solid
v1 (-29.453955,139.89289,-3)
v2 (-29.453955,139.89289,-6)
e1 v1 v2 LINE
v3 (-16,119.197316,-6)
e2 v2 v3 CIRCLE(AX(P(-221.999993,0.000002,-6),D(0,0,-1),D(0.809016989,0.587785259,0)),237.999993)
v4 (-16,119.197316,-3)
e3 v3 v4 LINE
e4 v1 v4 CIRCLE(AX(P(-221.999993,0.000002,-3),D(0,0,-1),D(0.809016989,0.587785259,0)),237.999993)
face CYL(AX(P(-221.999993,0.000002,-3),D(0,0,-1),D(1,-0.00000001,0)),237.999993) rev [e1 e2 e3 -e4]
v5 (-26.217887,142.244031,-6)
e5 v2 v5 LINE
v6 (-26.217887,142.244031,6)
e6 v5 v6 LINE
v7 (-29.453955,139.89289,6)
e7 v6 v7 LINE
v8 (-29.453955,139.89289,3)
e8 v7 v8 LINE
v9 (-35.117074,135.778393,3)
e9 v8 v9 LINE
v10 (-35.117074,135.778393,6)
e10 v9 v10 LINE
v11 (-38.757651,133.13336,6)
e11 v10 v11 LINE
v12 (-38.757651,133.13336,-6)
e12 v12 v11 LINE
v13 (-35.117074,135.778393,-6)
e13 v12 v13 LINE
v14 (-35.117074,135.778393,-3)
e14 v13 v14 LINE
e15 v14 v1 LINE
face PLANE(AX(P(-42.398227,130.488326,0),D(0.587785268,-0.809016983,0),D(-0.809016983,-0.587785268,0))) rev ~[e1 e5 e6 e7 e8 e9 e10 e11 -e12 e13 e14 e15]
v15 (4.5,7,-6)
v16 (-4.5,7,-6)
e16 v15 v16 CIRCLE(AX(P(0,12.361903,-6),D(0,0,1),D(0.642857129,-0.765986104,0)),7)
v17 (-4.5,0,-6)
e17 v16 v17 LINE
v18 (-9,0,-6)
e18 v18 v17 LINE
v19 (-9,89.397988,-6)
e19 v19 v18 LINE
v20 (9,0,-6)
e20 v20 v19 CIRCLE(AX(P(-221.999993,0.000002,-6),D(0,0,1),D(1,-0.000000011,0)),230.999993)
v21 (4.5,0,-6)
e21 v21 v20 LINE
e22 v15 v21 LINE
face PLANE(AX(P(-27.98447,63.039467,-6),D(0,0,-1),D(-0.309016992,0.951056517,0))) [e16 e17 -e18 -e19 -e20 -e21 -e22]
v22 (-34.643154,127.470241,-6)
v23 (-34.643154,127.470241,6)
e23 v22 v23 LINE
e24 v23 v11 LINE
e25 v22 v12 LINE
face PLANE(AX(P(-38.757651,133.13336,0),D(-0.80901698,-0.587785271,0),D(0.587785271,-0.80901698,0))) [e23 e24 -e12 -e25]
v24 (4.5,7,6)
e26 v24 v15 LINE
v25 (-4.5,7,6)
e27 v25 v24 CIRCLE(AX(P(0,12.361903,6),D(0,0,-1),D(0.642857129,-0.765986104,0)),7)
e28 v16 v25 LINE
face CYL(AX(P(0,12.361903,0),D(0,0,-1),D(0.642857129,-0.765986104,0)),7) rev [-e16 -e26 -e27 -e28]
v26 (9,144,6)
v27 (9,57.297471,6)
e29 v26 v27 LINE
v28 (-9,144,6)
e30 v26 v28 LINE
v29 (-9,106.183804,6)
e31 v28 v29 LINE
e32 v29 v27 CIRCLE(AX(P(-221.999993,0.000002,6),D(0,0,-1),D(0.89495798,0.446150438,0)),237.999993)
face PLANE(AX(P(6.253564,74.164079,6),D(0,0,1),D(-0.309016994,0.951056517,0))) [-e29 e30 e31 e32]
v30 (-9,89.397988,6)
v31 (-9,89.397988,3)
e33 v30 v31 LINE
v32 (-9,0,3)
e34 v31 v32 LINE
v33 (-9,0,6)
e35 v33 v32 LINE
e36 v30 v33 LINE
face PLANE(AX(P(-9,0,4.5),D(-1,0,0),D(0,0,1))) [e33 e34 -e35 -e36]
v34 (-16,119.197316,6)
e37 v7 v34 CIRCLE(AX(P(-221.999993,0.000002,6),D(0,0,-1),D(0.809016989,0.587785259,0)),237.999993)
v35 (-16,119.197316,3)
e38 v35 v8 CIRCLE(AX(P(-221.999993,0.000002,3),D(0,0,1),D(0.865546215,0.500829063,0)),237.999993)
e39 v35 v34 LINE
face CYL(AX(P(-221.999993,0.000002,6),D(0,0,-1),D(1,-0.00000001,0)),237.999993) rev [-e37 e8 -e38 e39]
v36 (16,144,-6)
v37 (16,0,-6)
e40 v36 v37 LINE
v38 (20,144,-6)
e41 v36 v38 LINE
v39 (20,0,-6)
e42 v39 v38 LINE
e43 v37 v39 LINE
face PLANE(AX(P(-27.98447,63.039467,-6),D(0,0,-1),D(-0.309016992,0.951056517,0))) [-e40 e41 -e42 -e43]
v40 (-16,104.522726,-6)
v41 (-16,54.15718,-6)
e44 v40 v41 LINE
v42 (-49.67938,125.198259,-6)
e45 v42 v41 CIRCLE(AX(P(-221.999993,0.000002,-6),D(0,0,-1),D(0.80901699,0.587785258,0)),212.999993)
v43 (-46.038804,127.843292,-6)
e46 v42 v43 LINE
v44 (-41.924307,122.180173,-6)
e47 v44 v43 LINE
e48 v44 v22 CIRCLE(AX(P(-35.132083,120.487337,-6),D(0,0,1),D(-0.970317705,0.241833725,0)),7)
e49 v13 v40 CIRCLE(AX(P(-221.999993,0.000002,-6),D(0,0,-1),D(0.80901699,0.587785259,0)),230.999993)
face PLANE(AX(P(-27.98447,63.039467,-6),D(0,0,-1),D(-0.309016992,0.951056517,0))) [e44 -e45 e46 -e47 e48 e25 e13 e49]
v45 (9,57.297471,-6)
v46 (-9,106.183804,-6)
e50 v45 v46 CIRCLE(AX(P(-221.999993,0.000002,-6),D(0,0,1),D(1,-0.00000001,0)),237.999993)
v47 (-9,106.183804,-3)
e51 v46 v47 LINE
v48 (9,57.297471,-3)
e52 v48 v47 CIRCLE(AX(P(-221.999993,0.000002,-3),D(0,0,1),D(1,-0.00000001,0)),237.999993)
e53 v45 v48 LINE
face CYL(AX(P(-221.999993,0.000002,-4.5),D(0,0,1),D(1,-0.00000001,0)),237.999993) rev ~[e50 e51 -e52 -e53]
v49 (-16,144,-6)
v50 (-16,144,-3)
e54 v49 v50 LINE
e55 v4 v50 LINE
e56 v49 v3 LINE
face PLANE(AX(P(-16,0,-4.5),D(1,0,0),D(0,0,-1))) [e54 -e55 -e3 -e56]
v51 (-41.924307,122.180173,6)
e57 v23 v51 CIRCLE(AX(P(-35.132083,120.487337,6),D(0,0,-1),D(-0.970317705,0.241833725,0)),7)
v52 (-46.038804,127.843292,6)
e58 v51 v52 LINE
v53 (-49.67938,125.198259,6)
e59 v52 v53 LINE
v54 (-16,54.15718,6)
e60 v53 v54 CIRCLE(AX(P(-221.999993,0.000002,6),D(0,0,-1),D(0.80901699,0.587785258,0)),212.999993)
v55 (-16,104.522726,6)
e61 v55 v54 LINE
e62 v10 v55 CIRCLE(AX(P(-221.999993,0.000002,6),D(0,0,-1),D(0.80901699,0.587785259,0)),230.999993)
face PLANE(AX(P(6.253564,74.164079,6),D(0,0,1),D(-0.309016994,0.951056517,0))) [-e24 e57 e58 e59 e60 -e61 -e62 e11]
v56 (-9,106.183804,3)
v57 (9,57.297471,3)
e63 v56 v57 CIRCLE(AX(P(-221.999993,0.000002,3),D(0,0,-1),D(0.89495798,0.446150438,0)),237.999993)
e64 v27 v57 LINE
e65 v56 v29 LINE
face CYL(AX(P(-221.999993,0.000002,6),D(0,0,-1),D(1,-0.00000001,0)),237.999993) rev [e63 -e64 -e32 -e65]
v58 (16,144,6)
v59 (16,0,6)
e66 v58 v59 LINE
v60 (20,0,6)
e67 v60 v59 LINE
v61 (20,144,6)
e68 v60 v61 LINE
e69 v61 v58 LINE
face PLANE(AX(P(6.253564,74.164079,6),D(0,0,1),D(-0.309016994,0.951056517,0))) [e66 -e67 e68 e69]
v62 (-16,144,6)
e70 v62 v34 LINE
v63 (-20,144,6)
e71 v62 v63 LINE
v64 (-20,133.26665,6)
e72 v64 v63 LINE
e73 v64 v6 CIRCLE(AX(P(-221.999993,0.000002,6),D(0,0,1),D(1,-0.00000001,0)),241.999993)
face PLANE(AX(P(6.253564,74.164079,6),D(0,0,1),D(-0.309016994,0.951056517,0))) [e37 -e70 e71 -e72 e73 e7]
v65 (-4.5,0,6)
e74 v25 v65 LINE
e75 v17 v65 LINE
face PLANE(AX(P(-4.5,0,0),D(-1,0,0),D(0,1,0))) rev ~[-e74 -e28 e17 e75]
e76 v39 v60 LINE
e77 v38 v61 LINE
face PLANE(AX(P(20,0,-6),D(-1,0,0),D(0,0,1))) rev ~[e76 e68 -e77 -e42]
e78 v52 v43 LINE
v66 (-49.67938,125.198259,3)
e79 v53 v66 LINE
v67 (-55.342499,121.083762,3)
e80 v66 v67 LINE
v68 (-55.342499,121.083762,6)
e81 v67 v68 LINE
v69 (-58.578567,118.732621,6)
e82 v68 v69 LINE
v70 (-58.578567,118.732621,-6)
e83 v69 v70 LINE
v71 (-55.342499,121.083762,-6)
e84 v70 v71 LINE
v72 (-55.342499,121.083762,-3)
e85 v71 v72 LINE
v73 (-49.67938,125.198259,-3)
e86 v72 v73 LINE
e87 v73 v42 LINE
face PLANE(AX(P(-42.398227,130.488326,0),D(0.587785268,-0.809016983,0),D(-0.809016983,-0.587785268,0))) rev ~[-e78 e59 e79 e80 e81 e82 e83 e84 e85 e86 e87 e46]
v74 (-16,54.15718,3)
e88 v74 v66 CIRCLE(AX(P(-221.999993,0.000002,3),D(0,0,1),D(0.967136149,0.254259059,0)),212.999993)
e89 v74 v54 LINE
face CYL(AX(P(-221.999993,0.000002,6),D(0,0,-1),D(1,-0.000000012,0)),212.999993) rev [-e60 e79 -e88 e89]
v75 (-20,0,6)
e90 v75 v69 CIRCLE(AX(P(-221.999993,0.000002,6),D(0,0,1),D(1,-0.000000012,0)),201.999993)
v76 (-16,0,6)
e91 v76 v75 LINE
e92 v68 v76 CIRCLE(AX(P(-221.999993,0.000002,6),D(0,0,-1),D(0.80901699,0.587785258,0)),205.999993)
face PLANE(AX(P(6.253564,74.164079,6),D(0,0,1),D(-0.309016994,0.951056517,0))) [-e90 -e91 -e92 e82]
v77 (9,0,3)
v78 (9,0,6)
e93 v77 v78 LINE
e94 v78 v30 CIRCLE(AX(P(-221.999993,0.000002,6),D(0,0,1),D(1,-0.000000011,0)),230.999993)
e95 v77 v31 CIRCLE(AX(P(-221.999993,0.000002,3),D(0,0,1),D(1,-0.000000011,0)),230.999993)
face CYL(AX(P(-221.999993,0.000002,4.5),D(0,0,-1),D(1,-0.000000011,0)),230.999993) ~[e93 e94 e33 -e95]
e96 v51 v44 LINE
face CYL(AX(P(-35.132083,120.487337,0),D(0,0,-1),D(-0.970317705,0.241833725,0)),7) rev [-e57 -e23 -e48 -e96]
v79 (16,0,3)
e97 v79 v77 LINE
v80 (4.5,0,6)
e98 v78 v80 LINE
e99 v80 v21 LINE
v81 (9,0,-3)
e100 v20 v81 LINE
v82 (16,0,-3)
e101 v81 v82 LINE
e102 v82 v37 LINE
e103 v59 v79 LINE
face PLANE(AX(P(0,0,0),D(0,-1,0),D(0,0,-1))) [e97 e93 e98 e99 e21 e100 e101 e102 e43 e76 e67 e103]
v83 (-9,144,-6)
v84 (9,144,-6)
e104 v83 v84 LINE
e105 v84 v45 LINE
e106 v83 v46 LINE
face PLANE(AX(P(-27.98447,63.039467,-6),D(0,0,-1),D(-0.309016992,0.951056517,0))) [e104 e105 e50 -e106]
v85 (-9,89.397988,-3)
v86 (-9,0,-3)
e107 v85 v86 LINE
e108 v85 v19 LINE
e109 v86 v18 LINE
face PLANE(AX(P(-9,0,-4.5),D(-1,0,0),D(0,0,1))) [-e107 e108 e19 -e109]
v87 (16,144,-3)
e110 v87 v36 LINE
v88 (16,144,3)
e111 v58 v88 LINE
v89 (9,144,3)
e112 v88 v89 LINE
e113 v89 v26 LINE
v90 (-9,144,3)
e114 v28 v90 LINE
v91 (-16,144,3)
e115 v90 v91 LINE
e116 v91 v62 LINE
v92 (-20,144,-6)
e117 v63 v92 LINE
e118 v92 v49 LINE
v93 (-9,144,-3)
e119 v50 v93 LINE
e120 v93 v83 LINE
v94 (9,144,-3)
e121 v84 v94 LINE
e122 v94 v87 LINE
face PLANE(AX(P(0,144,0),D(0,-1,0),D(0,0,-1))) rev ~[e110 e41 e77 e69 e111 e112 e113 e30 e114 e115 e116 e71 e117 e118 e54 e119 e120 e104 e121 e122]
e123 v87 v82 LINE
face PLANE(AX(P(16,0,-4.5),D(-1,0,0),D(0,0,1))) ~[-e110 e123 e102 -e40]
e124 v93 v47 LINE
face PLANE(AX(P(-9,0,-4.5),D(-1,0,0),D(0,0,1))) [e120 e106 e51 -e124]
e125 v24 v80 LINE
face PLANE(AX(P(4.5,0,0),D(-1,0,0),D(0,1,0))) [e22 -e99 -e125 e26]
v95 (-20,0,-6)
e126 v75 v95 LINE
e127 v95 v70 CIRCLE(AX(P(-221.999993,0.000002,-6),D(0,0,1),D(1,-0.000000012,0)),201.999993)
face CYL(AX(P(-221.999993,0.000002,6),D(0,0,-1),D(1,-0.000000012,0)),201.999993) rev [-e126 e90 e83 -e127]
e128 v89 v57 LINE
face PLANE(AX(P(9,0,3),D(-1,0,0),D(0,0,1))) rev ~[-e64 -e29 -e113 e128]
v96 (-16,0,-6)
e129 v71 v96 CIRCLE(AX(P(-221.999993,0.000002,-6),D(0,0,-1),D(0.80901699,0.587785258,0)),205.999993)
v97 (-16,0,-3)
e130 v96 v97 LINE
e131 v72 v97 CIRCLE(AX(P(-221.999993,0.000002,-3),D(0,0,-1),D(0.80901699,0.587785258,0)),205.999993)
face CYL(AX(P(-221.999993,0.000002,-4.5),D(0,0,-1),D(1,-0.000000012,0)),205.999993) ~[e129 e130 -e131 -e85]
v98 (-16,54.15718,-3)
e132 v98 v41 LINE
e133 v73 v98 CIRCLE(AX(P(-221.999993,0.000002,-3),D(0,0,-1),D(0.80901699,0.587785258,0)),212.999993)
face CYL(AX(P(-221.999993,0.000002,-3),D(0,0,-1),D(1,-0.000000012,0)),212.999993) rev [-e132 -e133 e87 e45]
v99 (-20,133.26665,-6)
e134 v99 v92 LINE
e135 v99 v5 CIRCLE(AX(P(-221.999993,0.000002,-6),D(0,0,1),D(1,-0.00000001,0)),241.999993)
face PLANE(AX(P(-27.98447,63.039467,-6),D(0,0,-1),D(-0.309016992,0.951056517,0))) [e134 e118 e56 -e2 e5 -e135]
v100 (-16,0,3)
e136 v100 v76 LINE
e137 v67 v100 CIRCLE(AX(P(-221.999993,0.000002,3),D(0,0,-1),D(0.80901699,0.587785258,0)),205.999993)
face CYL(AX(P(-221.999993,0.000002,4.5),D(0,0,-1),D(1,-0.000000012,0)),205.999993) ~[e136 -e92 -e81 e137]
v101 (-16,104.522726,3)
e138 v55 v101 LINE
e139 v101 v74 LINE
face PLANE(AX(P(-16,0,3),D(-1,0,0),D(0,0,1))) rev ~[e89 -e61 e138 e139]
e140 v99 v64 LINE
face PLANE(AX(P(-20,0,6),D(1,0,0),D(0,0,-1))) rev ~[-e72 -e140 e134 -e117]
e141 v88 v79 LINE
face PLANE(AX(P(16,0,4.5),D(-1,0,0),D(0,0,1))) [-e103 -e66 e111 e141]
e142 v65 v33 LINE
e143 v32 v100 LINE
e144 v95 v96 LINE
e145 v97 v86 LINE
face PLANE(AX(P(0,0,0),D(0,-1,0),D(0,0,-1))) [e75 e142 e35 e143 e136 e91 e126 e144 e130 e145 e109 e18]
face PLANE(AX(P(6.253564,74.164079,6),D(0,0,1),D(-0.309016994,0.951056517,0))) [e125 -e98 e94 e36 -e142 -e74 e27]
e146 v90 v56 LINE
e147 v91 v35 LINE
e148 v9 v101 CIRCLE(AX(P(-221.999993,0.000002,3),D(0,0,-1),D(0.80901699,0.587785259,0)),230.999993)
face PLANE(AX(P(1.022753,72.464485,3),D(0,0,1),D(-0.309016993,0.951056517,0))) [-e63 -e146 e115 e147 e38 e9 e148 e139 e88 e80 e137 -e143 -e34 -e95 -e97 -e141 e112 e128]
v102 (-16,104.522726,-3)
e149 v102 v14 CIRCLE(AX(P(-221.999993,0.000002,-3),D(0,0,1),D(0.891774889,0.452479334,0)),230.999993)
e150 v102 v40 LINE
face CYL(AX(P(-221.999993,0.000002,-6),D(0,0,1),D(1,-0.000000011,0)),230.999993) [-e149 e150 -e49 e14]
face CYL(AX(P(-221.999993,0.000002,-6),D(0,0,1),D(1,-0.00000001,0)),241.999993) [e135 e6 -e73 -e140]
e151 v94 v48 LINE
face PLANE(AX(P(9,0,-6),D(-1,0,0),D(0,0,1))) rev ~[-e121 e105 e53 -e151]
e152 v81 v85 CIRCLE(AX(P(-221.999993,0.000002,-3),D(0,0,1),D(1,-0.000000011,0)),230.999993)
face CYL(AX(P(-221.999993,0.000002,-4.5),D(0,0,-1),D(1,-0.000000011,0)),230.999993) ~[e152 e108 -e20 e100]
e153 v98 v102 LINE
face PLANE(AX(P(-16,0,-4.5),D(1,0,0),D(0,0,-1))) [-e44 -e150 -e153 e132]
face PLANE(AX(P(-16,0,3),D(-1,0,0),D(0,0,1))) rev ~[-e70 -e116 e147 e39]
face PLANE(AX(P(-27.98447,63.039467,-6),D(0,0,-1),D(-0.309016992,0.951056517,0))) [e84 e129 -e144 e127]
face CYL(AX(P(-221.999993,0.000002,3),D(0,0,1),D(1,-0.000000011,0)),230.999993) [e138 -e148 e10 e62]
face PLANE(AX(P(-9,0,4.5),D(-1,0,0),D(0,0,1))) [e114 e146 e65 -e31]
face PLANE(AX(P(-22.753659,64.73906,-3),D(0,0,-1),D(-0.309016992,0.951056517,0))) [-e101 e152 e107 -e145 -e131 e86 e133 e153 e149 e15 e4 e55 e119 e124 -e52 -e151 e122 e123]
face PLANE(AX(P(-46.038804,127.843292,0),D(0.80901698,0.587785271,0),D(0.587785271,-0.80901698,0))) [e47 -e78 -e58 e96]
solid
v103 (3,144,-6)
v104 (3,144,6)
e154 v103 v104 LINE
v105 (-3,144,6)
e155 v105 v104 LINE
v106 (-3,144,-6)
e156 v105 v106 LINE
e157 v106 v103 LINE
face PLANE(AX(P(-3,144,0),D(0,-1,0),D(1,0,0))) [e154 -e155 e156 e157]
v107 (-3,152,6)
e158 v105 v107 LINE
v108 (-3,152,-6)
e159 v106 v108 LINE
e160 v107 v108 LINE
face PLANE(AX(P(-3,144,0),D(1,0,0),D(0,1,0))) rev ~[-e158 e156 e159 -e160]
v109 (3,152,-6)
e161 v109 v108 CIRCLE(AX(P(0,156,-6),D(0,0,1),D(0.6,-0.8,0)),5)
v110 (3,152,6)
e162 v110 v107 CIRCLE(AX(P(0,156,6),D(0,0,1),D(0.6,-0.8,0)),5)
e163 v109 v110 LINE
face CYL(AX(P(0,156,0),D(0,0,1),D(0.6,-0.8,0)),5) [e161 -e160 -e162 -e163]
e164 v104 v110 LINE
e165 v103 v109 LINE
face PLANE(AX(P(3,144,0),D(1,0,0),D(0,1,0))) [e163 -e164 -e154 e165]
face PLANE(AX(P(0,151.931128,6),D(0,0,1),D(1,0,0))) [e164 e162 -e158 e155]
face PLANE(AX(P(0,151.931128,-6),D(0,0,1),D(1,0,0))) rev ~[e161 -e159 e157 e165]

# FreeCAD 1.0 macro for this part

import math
import FreeCAD as App
import Part
import Sketcher
Q = App.Units.Quantity

doc = App.newDocument("Part")
params = doc.addObject("Spreadsheet::Sheet", "Params")
for row, (alias, value) in enumerate([
    ("sketch1_width", "4 mm"),
    ("sketch1_width2", "7 mm"),
    ("sketch1_width3", "18 mm"),
    ("sketch1_height", "12 mm"),
    ("sketch1_height2", "3 mm"),
    ("sketch3_width", "4 mm"),
    ("sketch3_width2", "7 mm"),
    ("sketch3_width3", "18 mm"),
    ("sketch3_height", "12 mm"),
    ("sketch3_height2", "3 mm"),
    ("sketch4_height", "144 mm"),
    ("sketch5_width", "7 mm"),
    ("sketch5_height", "3 mm"),
    ("sketch6_height", "144 mm"),
    ("sketch7_width", "7 mm"),
    ("sketch7_height", "3 mm"),
    ("sketch9_width", "7 mm"),
    ("sketch9_height", "3 mm"),
    ("sketch11_width", "7 mm"),
    ("sketch11_height", "3 mm"),
    ("sketch12_height", "144 mm"),
    ("sketch13_width", "7 mm"),
    ("sketch13_height", "3 mm"),
    ("sketch15_width", "7 mm"),
    ("sketch15_height", "3 mm"),
    ("sketch16_height", "144 mm"),
    ("sketch17_width", "7 mm"),
    ("sketch17_height", "3 mm"),
    ("sketch19_radius", "7 mm"),
    ("sketch19_length", "9 mm"),
    ("sketch19_length2", "7 mm"),
    ("sketch20_radius", "7 mm"),
    ("sketch20_width", "9 mm"),
    ("sketch20_height", "7 mm"),
    ("sketch21_radius", "5 mm"),
    ("sketch21_width", "6 mm"),
    ("sketch21_height", "8 mm"),
    ("pad1_length", "12 mm"),
], start=1):
    params.set(f"A{row}", alias)
    params.set(f"B{row}", "=" + value)
    params.setAlias(f"B{row}", alias)

body = doc.addObject("PartDesign::Body", "Body")

sketch1 = body.newObject("Sketcher::SketchObject", "Sketch")
sketch1.AttachmentSupport = (doc.getObject("XZ_Plane"), [""])
sketch1.MapMode = "FlatFace"
sketch1.addGeometry(Part.LineSegment(App.Vector(-20, 6, 0), App.Vector(-20, -6, 0)), False)
sketch1.addGeometry(Part.LineSegment(App.Vector(-20, -6, 0), App.Vector(-16, -6, 0)), False)
sketch1.addGeometry(Part.LineSegment(App.Vector(-16, -6, 0), App.Vector(-16, -3, 0)), False)
sketch1.addGeometry(Part.LineSegment(App.Vector(-16, -3, 0), App.Vector(-9, -3, 0)), False)
sketch1.addGeometry(Part.LineSegment(App.Vector(-9, -3, 0), App.Vector(-9, -6, 0)), False)
sketch1.addGeometry(Part.LineSegment(App.Vector(-9, -6, 0), App.Vector(9, -6, 0)), False)
sketch1.addGeometry(Part.LineSegment(App.Vector(9, -6, 0), App.Vector(9, -3, 0)), False)
sketch1.addGeometry(Part.LineSegment(App.Vector(9, -3, 0), App.Vector(16, -3, 0)), False)
sketch1.addGeometry(Part.LineSegment(App.Vector(16, -3, 0), App.Vector(16, -6, 0)), False)
sketch1.addGeometry(Part.LineSegment(App.Vector(16, -6, 0), App.Vector(20, -6, 0)), False)
sketch1.addGeometry(Part.LineSegment(App.Vector(20, -6, 0), App.Vector(20, 6, 0)), False)
sketch1.addGeometry(Part.LineSegment(App.Vector(20, 6, 0), App.Vector(16, 6, 0)), False)
sketch1.addGeometry(Part.LineSegment(App.Vector(16, 6, 0), App.Vector(16, 3, 0)), False)
sketch1.addGeometry(Part.LineSegment(App.Vector(16, 3, 0), App.Vector(9, 3, 0)), False)
sketch1.addGeometry(Part.LineSegment(App.Vector(9, 3, 0), App.Vector(9, 6, 0)), False)
sketch1.addGeometry(Part.LineSegment(App.Vector(9, 6, 0), App.Vector(-9, 6, 0)), False)
sketch1.addGeometry(Part.LineSegment(App.Vector(-9, 6, 0), App.Vector(-9, 3, 0)), False)
sketch1.addGeometry(Part.LineSegment(App.Vector(-9, 3, 0), App.Vector(-16, 3, 0)), False)
sketch1.addGeometry(Part.LineSegment(App.Vector(-16, 3, 0), App.Vector(-16, 6, 0)), False)
sketch1.addGeometry(Part.LineSegment(App.Vector(-16, 6, 0), App.Vector(-20, 6, 0)), False)
sketch1.addConstraint(Sketcher.Constraint("Coincident", 0, 2, 1, 1))
sketch1.addConstraint(Sketcher.Constraint("Coincident", 1, 2, 2, 1))
sketch1.addConstraint(Sketcher.Constraint("Coincident", 2, 2, 3, 1))
sketch1.addConstraint(Sketcher.Constraint("Coincident", 3, 2, 4, 1))
sketch1.addConstraint(Sketcher.Constraint("Coincident", 4, 2, 5, 1))
sketch1.addConstraint(Sketcher.Constraint("Coincident", 5, 2, 6, 1))
sketch1.addConstraint(Sketcher.Constraint("Coincident", 6, 2, 7, 1))
sketch1.addConstraint(Sketcher.Constraint("Coincident", 7, 2, 8, 1))
sketch1.addConstraint(Sketcher.Constraint("Coincident", 8, 2, 9, 1))
sketch1.addConstraint(Sketcher.Constraint("Coincident", 9, 2, 10, 1))
sketch1.addConstraint(Sketcher.Constraint("Coincident", 10, 2, 11, 1))
sketch1.addConstraint(Sketcher.Constraint("Coincident", 11, 2, 12, 1))
sketch1.addConstraint(Sketcher.Constraint("Coincident", 12, 2, 13, 1))
sketch1.addConstraint(Sketcher.Constraint("Coincident", 13, 2, 14, 1))
sketch1.addConstraint(Sketcher.Constraint("Coincident", 14, 2, 15, 1))
sketch1.addConstraint(Sketcher.Constraint("Coincident", 15, 2, 16, 1))
sketch1.addConstraint(Sketcher.Constraint("Coincident", 16, 2, 17, 1))
sketch1.addConstraint(Sketcher.Constraint("Coincident", 17, 2, 18, 1))
sketch1.addConstraint(Sketcher.Constraint("Coincident", 18, 2, 19, 1))
sketch1.addConstraint(Sketcher.Constraint("Coincident", 19, 2, 0, 1))
sketch1.addConstraint(Sketcher.Constraint("Vertical", 0))
sketch1.addConstraint(Sketcher.Constraint("Horizontal", 1))
sketch1.addConstraint(Sketcher.Constraint("Vertical", 2))
sketch1.addConstraint(Sketcher.Constraint("Horizontal", 3))
sketch1.addConstraint(Sketcher.Constraint("Vertical", 4))
sketch1.addConstraint(Sketcher.Constraint("Horizontal", 5))
sketch1.addConstraint(Sketcher.Constraint("Vertical", 6))
sketch1.addConstraint(Sketcher.Constraint("Horizontal", 7))
sketch1.addConstraint(Sketcher.Constraint("Vertical", 8))
sketch1.addConstraint(Sketcher.Constraint("Horizontal", 9))
sketch1.addConstraint(Sketcher.Constraint("Vertical", 10))
sketch1.addConstraint(Sketcher.Constraint("Horizontal", 11))
sketch1.addConstraint(Sketcher.Constraint("Vertical", 12))
sketch1.addConstraint(Sketcher.Constraint("Horizontal", 13))
sketch1.addConstraint(Sketcher.Constraint("Vertical", 14))
sketch1.addConstraint(Sketcher.Constraint("Horizontal", 15))
sketch1.addConstraint(Sketcher.Constraint("Vertical", 16))
sketch1.addConstraint(Sketcher.Constraint("Horizontal", 17))
sketch1.addConstraint(Sketcher.Constraint("Vertical", 18))
sketch1.addConstraint(Sketcher.Constraint("Horizontal", 19))
sketch1.addConstraint(Sketcher.Constraint("Symmetric", 0, 2, 10, 2, -1, 1))
sketch1.addConstraint(Sketcher.Constraint("Symmetric", 2, 2, 12, 2, -1, 1))
sketch1.addConstraint(Sketcher.Constraint("Symmetric", 4, 2, 14, 2, -1, 1))
sketch1.addConstraint(Sketcher.Constraint("Symmetric", 6, 2, 16, 2, -1, 1))
sketch1.addConstraint(Sketcher.Constraint("Symmetric", 8, 2, 18, 2, -1, 1))
sketch1.addConstraint(Sketcher.Constraint("Symmetric", 3, 2, 6, 2, -2))
sketch1.addConstraint(Sketcher.Constraint("Symmetric", 1, 2, 8, 2, -2))
sketch1.addConstraint(Sketcher.Constraint("Horizontal", 1, 2, 4, 2))
sketch1.addConstraint(Sketcher.Constraint("DistanceX", 1, 1, 1, 2, 4.0))
sketch1.addConstraint(Sketcher.Constraint("DistanceX", 3, 1, 3, 2, 7.0))
sketch1.addConstraint(Sketcher.Constraint("DistanceX", 5, 1, 5, 2, 18.0))
sketch1.addConstraint(Sketcher.Constraint("DistanceY", 0, 2, 0, 1, 12.0))
sketch1.addConstraint(Sketcher.Constraint("DistanceY", 2, 1, 2, 2, 3.0))
sketch1.setExpression("Constraints[48]", "Params.sketch1_width")
sketch1.setExpression("Constraints[49]", "Params.sketch1_width2")
sketch1.setExpression("Constraints[50]", "Params.sketch1_width3")
sketch1.setExpression("Constraints[51]", "Params.sketch1_height")
sketch1.setExpression("Constraints[52]", "Params.sketch1_height2")

sketch2 = body.newObject("Sketcher::SketchObject", "Sketch001")
sketch2.AttachmentSupport = (doc.getObject("XY_Plane"), [""])
sketch2.MapMode = "FlatFace"
sketch2.addGeometry(Part.ArcOfCircle(Part.Circle(App.Vector(-222, 0, 0), App.Vector(0, 0, 1), 222), math.radians(0), math.radians(36)), False)
sketch2.addConstraint(Sketcher.Constraint("Coincident", 0, 1, -1, 1))
sketch2.addConstraint(Sketcher.Constraint("Radius", 0, 221.999993))
sketch2.addConstraint(Sketcher.Constraint("DistanceX", 0, 2, -1, 1, 42.398227))
sketch2.addConstraint(Sketcher.Constraint("DistanceY", -1, 1, 0, 2, 130.488326))
doc.recompute()

additivepipe = body.newObject("PartDesign::AdditivePipe", "AdditivePipe")
additivepipe.Profile = sketch1
additivepipe.Spine = (sketch2, ["Edge1"])

sketch3 = body.newObject("Sketcher::SketchObject", "Sketch002")
sketch3.AttachmentSupport = (doc.getObject("XZ_Plane"), [""])
sketch3.MapMode = "FlatFace"
sketch3.addGeometry(Part.LineSegment(App.Vector(-20, 6, 0), App.Vector(-20, -6, 0)), False)
sketch3.addGeometry(Part.LineSegment(App.Vector(-20, -6, 0), App.Vector(-16, -6, 0)), False)
sketch3.addGeometry(Part.LineSegment(App.Vector(-16, -6, 0), App.Vector(-16, -3, 0)), False)
sketch3.addGeometry(Part.LineSegment(App.Vector(-16, -3, 0), App.Vector(-9, -3, 0)), False)
sketch3.addGeometry(Part.LineSegment(App.Vector(-9, -3, 0), App.Vector(-9, -6, 0)), False)
sketch3.addGeometry(Part.LineSegment(App.Vector(-9, -6, 0), App.Vector(9, -6, 0)), False)
sketch3.addGeometry(Part.LineSegment(App.Vector(9, -6, 0), App.Vector(9, -3, 0)), False)
sketch3.addGeometry(Part.LineSegment(App.Vector(9, -3, 0), App.Vector(16, -3, 0)), False)
sketch3.addGeometry(Part.LineSegment(App.Vector(16, -3, 0), App.Vector(16, -6, 0)), False)
sketch3.addGeometry(Part.LineSegment(App.Vector(16, -6, 0), App.Vector(20, -6, 0)), False)
sketch3.addGeometry(Part.LineSegment(App.Vector(20, -6, 0), App.Vector(20, 6, 0)), False)
sketch3.addGeometry(Part.LineSegment(App.Vector(20, 6, 0), App.Vector(16, 6, 0)), False)
sketch3.addGeometry(Part.LineSegment(App.Vector(16, 6, 0), App.Vector(16, 3, 0)), False)
sketch3.addGeometry(Part.LineSegment(App.Vector(16, 3, 0), App.Vector(9, 3, 0)), False)
sketch3.addGeometry(Part.LineSegment(App.Vector(9, 3, 0), App.Vector(9, 6, 0)), False)
sketch3.addGeometry(Part.LineSegment(App.Vector(9, 6, 0), App.Vector(-9, 6, 0)), False)
sketch3.addGeometry(Part.LineSegment(App.Vector(-9, 6, 0), App.Vector(-9, 3, 0)), False)
sketch3.addGeometry(Part.LineSegment(App.Vector(-9, 3, 0), App.Vector(-16, 3, 0)), False)
sketch3.addGeometry(Part.LineSegment(App.Vector(-16, 3, 0), App.Vector(-16, 6, 0)), False)
sketch3.addGeometry(Part.LineSegment(App.Vector(-16, 6, 0), App.Vector(-20, 6, 0)), False)
sketch3.addConstraint(Sketcher.Constraint("Coincident", 0, 2, 1, 1))
sketch3.addConstraint(Sketcher.Constraint("Coincident", 1, 2, 2, 1))
sketch3.addConstraint(Sketcher.Constraint("Coincident", 2, 2, 3, 1))
sketch3.addConstraint(Sketcher.Constraint("Coincident", 3, 2, 4, 1))
sketch3.addConstraint(Sketcher.Constraint("Coincident", 4, 2, 5, 1))
sketch3.addConstraint(Sketcher.Constraint("Coincident", 5, 2, 6, 1))
sketch3.addConstraint(Sketcher.Constraint("Coincident", 6, 2, 7, 1))
sketch3.addConstraint(Sketcher.Constraint("Coincident", 7, 2, 8, 1))
sketch3.addConstraint(Sketcher.Constraint("Coincident", 8, 2, 9, 1))
sketch3.addConstraint(Sketcher.Constraint("Coincident", 9, 2, 10, 1))
sketch3.addConstraint(Sketcher.Constraint("Coincident", 10, 2, 11, 1))
sketch3.addConstraint(Sketcher.Constraint("Coincident", 11, 2, 12, 1))
sketch3.addConstraint(Sketcher.Constraint("Coincident", 12, 2, 13, 1))
sketch3.addConstraint(Sketcher.Constraint("Coincident", 13, 2, 14, 1))
sketch3.addConstraint(Sketcher.Constraint("Coincident", 14, 2, 15, 1))
sketch3.addConstraint(Sketcher.Constraint("Coincident", 15, 2, 16, 1))
sketch3.addConstraint(Sketcher.Constraint("Coincident", 16, 2, 17, 1))
sketch3.addConstraint(Sketcher.Constraint("Coincident", 17, 2, 18, 1))
sketch3.addConstraint(Sketcher.Constraint("Coincident", 18, 2, 19, 1))
sketch3.addConstraint(Sketcher.Constraint("Coincident", 19, 2, 0, 1))
sketch3.addConstraint(Sketcher.Constraint("Vertical", 0))
sketch3.addConstraint(Sketcher.Constraint("Horizontal", 1))
sketch3.addConstraint(Sketcher.Constraint("Vertical", 2))
sketch3.addConstraint(Sketcher.Constraint("Horizontal", 3))
sketch3.addConstraint(Sketcher.Constraint("Vertical", 4))
sketch3.addConstraint(Sketcher.Constraint("Horizontal", 5))
sketch3.addConstraint(Sketcher.Constraint("Vertical", 6))
sketch3.addConstraint(Sketcher.Constraint("Horizontal", 7))
sketch3.addConstraint(Sketcher.Constraint("Vertical", 8))
sketch3.addConstraint(Sketcher.Constraint("Horizontal", 9))
sketch3.addConstraint(Sketcher.Constraint("Vertical", 10))
sketch3.addConstraint(Sketcher.Constraint("Horizontal", 11))
sketch3.addConstraint(Sketcher.Constraint("Vertical", 12))
sketch3.addConstraint(Sketcher.Constraint("Horizontal", 13))
sketch3.addConstraint(Sketcher.Constraint("Vertical", 14))
sketch3.addConstraint(Sketcher.Constraint("Horizontal", 15))
sketch3.addConstraint(Sketcher.Constraint("Vertical", 16))
sketch3.addConstraint(Sketcher.Constraint("Horizontal", 17))
sketch3.addConstraint(Sketcher.Constraint("Vertical", 18))
sketch3.addConstraint(Sketcher.Constraint("Horizontal", 19))
sketch3.addConstraint(Sketcher.Constraint("Symmetric", 0, 2, 10, 2, -1, 1))
sketch3.addConstraint(Sketcher.Constraint("Symmetric", 2, 2, 12, 2, -1, 1))
sketch3.addConstraint(Sketcher.Constraint("Symmetric", 4, 2, 14, 2, -1, 1))
sketch3.addConstraint(Sketcher.Constraint("Symmetric", 6, 2, 16, 2, -1, 1))
sketch3.addConstraint(Sketcher.Constraint("Symmetric", 8, 2, 18, 2, -1, 1))
sketch3.addConstraint(Sketcher.Constraint("Symmetric", 3, 2, 6, 2, -2))
sketch3.addConstraint(Sketcher.Constraint("Symmetric", 1, 2, 8, 2, -2))
sketch3.addConstraint(Sketcher.Constraint("Horizontal", 1, 2, 4, 2))
sketch3.addConstraint(Sketcher.Constraint("DistanceX", 1, 1, 1, 2, 4.0))
sketch3.addConstraint(Sketcher.Constraint("DistanceX", 3, 1, 3, 2, 7.0))
sketch3.addConstraint(Sketcher.Constraint("DistanceX", 5, 1, 5, 2, 18.0))
sketch3.addConstraint(Sketcher.Constraint("DistanceY", 0, 2, 0, 1, 12.0))
sketch3.addConstraint(Sketcher.Constraint("DistanceY", 2, 1, 2, 2, 3.0))
sketch3.setExpression("Constraints[48]", "Params.sketch3_width")
sketch3.setExpression("Constraints[49]", "Params.sketch3_width2")
sketch3.setExpression("Constraints[50]", "Params.sketch3_width3")
sketch3.setExpression("Constraints[51]", "Params.sketch3_height")
sketch3.setExpression("Constraints[52]", "Params.sketch3_height2")

sketch4 = body.newObject("Sketcher::SketchObject", "Sketch003")
sketch4.AttachmentSupport = (doc.getObject("XY_Plane"), [""])
sketch4.MapMode = "FlatFace"
sketch4.addGeometry(Part.LineSegment(App.Vector(0, 0, 0), App.Vector(0, 144, 0)), False)
sketch4.addConstraint(Sketcher.Constraint("Vertical", 0))
sketch4.addConstraint(Sketcher.Constraint("Coincident", 0, 1, -1, 1))
sketch4.addConstraint(Sketcher.Constraint("DistanceY", 0, 1, 0, 2, 144.0))
sketch4.setExpression("Constraints[2]", "Params.sketch4_height")
doc.recompute()

additivepipe2 = body.newObject("PartDesign::AdditivePipe", "AdditivePipe001")
additivepipe2.Profile = sketch3
additivepipe2.Spine = (sketch4, ["Edge1"])

sketch5 = body.newObject("Sketcher::SketchObject", "Sketch004")
sketch5.AttachmentSupport = (doc.getObject("XZ_Plane"), [""])
sketch5.MapMode = "FlatFace"
sketch5.addGeometry(Part.LineSegment(App.Vector(-16, 6, 0), App.Vector(-16, 3, 0)), False)
sketch5.addGeometry(Part.LineSegment(App.Vector(-16, 3, 0), App.Vector(-9, 3, 0)), False)
sketch5.addGeometry(Part.LineSegment(App.Vector(-9, 3, 0), App.Vector(-9, 6, 0)), False)
sketch5.addGeometry(Part.LineSegment(App.Vector(-9, 6, 0), App.Vector(-16, 6, 0)), False)
sketch5.addConstraint(Sketcher.Constraint("Coincident", 0, 2, 1, 1))
sketch5.addConstraint(Sketcher.Constraint("Coincident", 1, 2, 2, 1))
sketch5.addConstraint(Sketcher.Constraint("Coincident", 2, 2, 3, 1))
sketch5.addConstraint(Sketcher.Constraint("Coincident", 3, 2, 0, 1))
sketch5.addConstraint(Sketcher.Constraint("Vertical", 0))
sketch5.addConstraint(Sketcher.Constraint("Horizontal", 1))
sketch5.addConstraint(Sketcher.Constraint("Vertical", 2))
sketch5.addConstraint(Sketcher.Constraint("Horizontal", 3))
sketch5.addConstraint(Sketcher.Constraint("DistanceX", 1, 1, 1, 2, 7.0))
sketch5.addConstraint(Sketcher.Constraint("DistanceY", 0, 2, 0, 1, 3.0))
sketch5.addConstraint(Sketcher.Constraint("DistanceX", 0, 2, -1, 1, 16.0))
sketch5.addConstraint(Sketcher.Constraint("DistanceY", -1, 1, 0, 2, 3.0))
sketch5.setExpression("Constraints[8]", "Params.sketch5_width")
sketch5.setExpression("Constraints[9]", "Params.sketch5_height")

sketch6 = body.newObject("Sketcher::SketchObject", "Sketch005")
sketch6.AttachmentSupport = (doc.getObject("XY_Plane"), [""])
sketch6.MapMode = "FlatFace"
sketch6.addGeometry(Part.LineSegment(App.Vector(0, 0, 0), App.Vector(0, 144, 0)), False)
sketch6.addConstraint(Sketcher.Constraint("Vertical", 0))
sketch6.addConstraint(Sketcher.Constraint("Coincident", 0, 1, -1, 1))
sketch6.addConstraint(Sketcher.Constraint("DistanceY", 0, 1, 0, 2, 144.0))
sketch6.setExpression("Constraints[2]", "Params.sketch6_height")
doc.recompute()

subtractivepipe = body.newObject("PartDesign::SubtractivePipe", "SubtractivePipe")
subtractivepipe.Profile = sketch5
subtractivepipe.Spine = (sketch6, ["Edge1"])

sketch7 = body.newObject("Sketcher::SketchObject", "Sketch006")
sketch7.AttachmentSupport = (doc.getObject("XZ_Plane"), [""])
sketch7.MapMode = "FlatFace"
sketch7.addGeometry(Part.LineSegment(App.Vector(-16, 6, 0), App.Vector(-16, 3, 0)), False)
sketch7.addGeometry(Part.LineSegment(App.Vector(-16, 3, 0), App.Vector(-9, 3, 0)), False)
sketch7.addGeometry(Part.LineSegment(App.Vector(-9, 3, 0), App.Vector(-9, 6, 0)), False)
sketch7.addGeometry(Part.LineSegment(App.Vector(-9, 6, 0), App.Vector(-16, 6, 0)), False)
sketch7.addConstraint(Sketcher.Constraint("Coincident", 0, 2, 1, 1))
sketch7.addConstraint(Sketcher.Constraint("Coincident", 1, 2, 2, 1))
sketch7.addConstraint(Sketcher.Constraint("Coincident", 2, 2, 3, 1))
sketch7.addConstraint(Sketcher.Constraint("Coincident", 3, 2, 0, 1))
sketch7.addConstraint(Sketcher.Constraint("Vertical", 0))
sketch7.addConstraint(Sketcher.Constraint("Horizontal", 1))
sketch7.addConstraint(Sketcher.Constraint("Vertical", 2))
sketch7.addConstraint(Sketcher.Constraint("Horizontal", 3))
sketch7.addConstraint(Sketcher.Constraint("DistanceX", 1, 1, 1, 2, 7.0))
sketch7.addConstraint(Sketcher.Constraint("DistanceY", 0, 2, 0, 1, 3.0))
sketch7.addConstraint(Sketcher.Constraint("DistanceX", 0, 2, -1, 1, 16.0))
sketch7.addConstraint(Sketcher.Constraint("DistanceY", -1, 1, 0, 2, 3.0))
sketch7.setExpression("Constraints[8]", "Params.sketch7_width")
sketch7.setExpression("Constraints[9]", "Params.sketch7_height")

sketch8 = body.newObject("Sketcher::SketchObject", "Sketch007")
sketch8.AttachmentSupport = (doc.getObject("XY_Plane"), [""])
sketch8.MapMode = "FlatFace"
sketch8.addGeometry(Part.ArcOfCircle(Part.Circle(App.Vector(-222, 0, 0), App.Vector(0, 0, 1), 222), math.radians(0), math.radians(36)), False)
sketch8.addConstraint(Sketcher.Constraint("Coincident", 0, 1, -1, 1))
sketch8.addConstraint(Sketcher.Constraint("Radius", 0, 221.999993))
sketch8.addConstraint(Sketcher.Constraint("DistanceX", 0, 2, -1, 1, 42.398227))
sketch8.addConstraint(Sketcher.Constraint("DistanceY", -1, 1, 0, 2, 130.488326))
doc.recompute()

subtractivepipe2 = body.newObject("PartDesign::SubtractivePipe", "SubtractivePipe001")
subtractivepipe2.Profile = sketch7
subtractivepipe2.Spine = (sketch8, ["Edge1"])

sketch9 = body.newObject("Sketcher::SketchObject", "Sketch008")
sketch9.AttachmentSupport = (doc.getObject("XZ_Plane"), [""])
sketch9.MapMode = "FlatFace"
sketch9.addGeometry(Part.LineSegment(App.Vector(9, 6, 0), App.Vector(9, 3, 0)), False)
sketch9.addGeometry(Part.LineSegment(App.Vector(9, 3, 0), App.Vector(16, 3, 0)), False)
sketch9.addGeometry(Part.LineSegment(App.Vector(16, 3, 0), App.Vector(16, 6, 0)), False)
sketch9.addGeometry(Part.LineSegment(App.Vector(16, 6, 0), App.Vector(9, 6, 0)), False)
sketch9.addConstraint(Sketcher.Constraint("Coincident", 0, 2, 1, 1))
sketch9.addConstraint(Sketcher.Constraint("Coincident", 1, 2, 2, 1))
sketch9.addConstraint(Sketcher.Constraint("Coincident", 2, 2, 3, 1))
sketch9.addConstraint(Sketcher.Constraint("Coincident", 3, 2, 0, 1))
sketch9.addConstraint(Sketcher.Constraint("Vertical", 0))
sketch9.addConstraint(Sketcher.Constraint("Horizontal", 1))
sketch9.addConstraint(Sketcher.Constraint("Vertical", 2))
sketch9.addConstraint(Sketcher.Constraint("Horizontal", 3))
sketch9.addConstraint(Sketcher.Constraint("DistanceX", 1, 1, 1, 2, 7.0))
sketch9.addConstraint(Sketcher.Constraint("DistanceY", 0, 2, 0, 1, 3.0))
sketch9.addConstraint(Sketcher.Constraint("DistanceX", -1, 1, 0, 2, 9.0))
sketch9.addConstraint(Sketcher.Constraint("DistanceY", -1, 1, 0, 2, 3.0))
sketch9.setExpression("Constraints[8]", "Params.sketch9_width")
sketch9.setExpression("Constraints[9]", "Params.sketch9_height")

sketch10 = body.newObject("Sketcher::SketchObject", "Sketch009")
sketch10.AttachmentSupport = (doc.getObject("XY_Plane"), [""])
sketch10.MapMode = "FlatFace"
sketch10.addGeometry(Part.ArcOfCircle(Part.Circle(App.Vector(-222, 0, 0), App.Vector(0, 0, 1), 222), math.radians(0), math.radians(36)), False)
sketch10.addConstraint(Sketcher.Constraint("Coincident", 0, 1, -1, 1))
sketch10.addConstraint(Sketcher.Constraint("Radius", 0, 221.999993))
sketch10.addConstraint(Sketcher.Constraint("DistanceX", 0, 2, -1, 1, 42.398227))
sketch10.addConstraint(Sketcher.Constraint("DistanceY", -1, 1, 0, 2, 130.488326))
doc.recompute()

subtractivepipe3 = body.newObject("PartDesign::SubtractivePipe", "SubtractivePipe002")
subtractivepipe3.Profile = sketch9
subtractivepipe3.Spine = (sketch10, ["Edge1"])

sketch11 = body.newObject("Sketcher::SketchObject", "Sketch010")
sketch11.AttachmentSupport = (doc.getObject("XZ_Plane"), [""])
sketch11.MapMode = "FlatFace"
sketch11.addGeometry(Part.LineSegment(App.Vector(9, 6, 0), App.Vector(9, 3, 0)), False)
sketch11.addGeometry(Part.LineSegment(App.Vector(9, 3, 0), App.Vector(16, 3, 0)), False)
sketch11.addGeometry(Part.LineSegment(App.Vector(16, 3, 0), App.Vector(16, 6, 0)), False)
sketch11.addGeometry(Part.LineSegment(App.Vector(16, 6, 0), App.Vector(9, 6, 0)), False)
sketch11.addConstraint(Sketcher.Constraint("Coincident", 0, 2, 1, 1))
sketch11.addConstraint(Sketcher.Constraint("Coincident", 1, 2, 2, 1))
sketch11.addConstraint(Sketcher.Constraint("Coincident", 2, 2, 3, 1))
sketch11.addConstraint(Sketcher.Constraint("Coincident", 3, 2, 0, 1))
sketch11.addConstraint(Sketcher.Constraint("Vertical", 0))
sketch11.addConstraint(Sketcher.Constraint("Horizontal", 1))
sketch11.addConstraint(Sketcher.Constraint("Vertical", 2))
sketch11.addConstraint(Sketcher.Constraint("Horizontal", 3))
sketch11.addConstraint(Sketcher.Constraint("DistanceX", 1, 1, 1, 2, 7.0))
sketch11.addConstraint(Sketcher.Constraint("DistanceY", 0, 2, 0, 1, 3.0))
sketch11.addConstraint(Sketcher.Constraint("DistanceX", -1, 1, 0, 2, 9.0))
sketch11.addConstraint(Sketcher.Constraint("DistanceY", -1, 1, 0, 2, 3.0))
sketch11.setExpression("Constraints[8]", "Params.sketch11_width")
sketch11.setExpression("Constraints[9]", "Params.sketch11_height")

sketch12 = body.newObject("Sketcher::SketchObject", "Sketch011")
sketch12.AttachmentSupport = (doc.getObject("XY_Plane"), [""])
sketch12.MapMode = "FlatFace"
sketch12.addGeometry(Part.LineSegment(App.Vector(0, 0, 0), App.Vector(0, 144, 0)), False)
sketch12.addConstraint(Sketcher.Constraint("Vertical", 0))
sketch12.addConstraint(Sketcher.Constraint("Coincident", 0, 1, -1, 1))
sketch12.addConstraint(Sketcher.Constraint("DistanceY", 0, 1, 0, 2, 144.0))
sketch12.setExpression("Constraints[2]", "Params.sketch12_height")
doc.recompute()

subtractivepipe4 = body.newObject("PartDesign::SubtractivePipe", "SubtractivePipe003")
subtractivepipe4.Profile = sketch11
subtractivepipe4.Spine = (sketch12, ["Edge1"])
doc.recompute()

mirrored = body.newObject("PartDesign::Mirrored", "Mirrored")
mirrored.Originals = [subtractivepipe4]
mirrored.MirrorPlane = (doc.getObject("XY_Plane"), [""])
body.Tip = mirrored

sketch13 = body.newObject("Sketcher::SketchObject", "Sketch012")
sketch13.AttachmentSupport = (doc.getObject("XZ_Plane"), [""])
sketch13.MapMode = "FlatFace"
sketch13.addGeometry(Part.LineSegment(App.Vector(-16, -3, 0), App.Vector(-16, -6, 0)), False)
sketch13.addGeometry(Part.LineSegment(App.Vector(-16, -6, 0), App.Vector(-9, -6, 0)), False)
sketch13.addGeometry(Part.LineSegment(App.Vector(-9, -6, 0), App.Vector(-9, -3, 0)), False)
sketch13.addGeometry(Part.LineSegment(App.Vector(-9, -3, 0), App.Vector(-16, -3, 0)), False)
sketch13.addConstraint(Sketcher.Constraint("Coincident", 0, 2, 1, 1))
sketch13.addConstraint(Sketcher.Constraint("Coincident", 1, 2, 2, 1))
sketch13.addConstraint(Sketcher.Constraint("Coincident", 2, 2, 3, 1))
sketch13.addConstraint(Sketcher.Constraint("Coincident", 3, 2, 0, 1))
sketch13.addConstraint(Sketcher.Constraint("Vertical", 0))
sketch13.addConstraint(Sketcher.Constraint("Horizontal", 1))
sketch13.addConstraint(Sketcher.Constraint("Vertical", 2))
sketch13.addConstraint(Sketcher.Constraint("Horizontal", 3))
sketch13.addConstraint(Sketcher.Constraint("DistanceX", 1, 1, 1, 2, 7.0))
sketch13.addConstraint(Sketcher.Constraint("DistanceY", 0, 2, 0, 1, 3.0))
sketch13.addConstraint(Sketcher.Constraint("DistanceX", 0, 2, -1, 1, 16.0))
sketch13.addConstraint(Sketcher.Constraint("DistanceY", 0, 2, -1, 1, 6.0))
sketch13.setExpression("Constraints[8]", "Params.sketch13_width")
sketch13.setExpression("Constraints[9]", "Params.sketch13_height")

sketch14 = body.newObject("Sketcher::SketchObject", "Sketch013")
sketch14.AttachmentSupport = (doc.getObject("XY_Plane"), [""])
sketch14.MapMode = "FlatFace"
sketch14.addGeometry(Part.ArcOfCircle(Part.Circle(App.Vector(-222, 0, 0), App.Vector(0, 0, 1), 222), math.radians(0), math.radians(36)), False)
sketch14.addConstraint(Sketcher.Constraint("Coincident", 0, 1, -1, 1))
sketch14.addConstraint(Sketcher.Constraint("Radius", 0, 221.999993))
sketch14.addConstraint(Sketcher.Constraint("DistanceX", 0, 2, -1, 1, 42.398227))
sketch14.addConstraint(Sketcher.Constraint("DistanceY", -1, 1, 0, 2, 130.488326))
doc.recompute()

subtractivepipe5 = body.newObject("PartDesign::SubtractivePipe", "SubtractivePipe004")
subtractivepipe5.Profile = sketch13
subtractivepipe5.Spine = (sketch14, ["Edge1"])

sketch15 = body.newObject("Sketcher::SketchObject", "Sketch014")
sketch15.AttachmentSupport = (doc.getObject("XZ_Plane"), [""])
sketch15.MapMode = "FlatFace"
sketch15.addGeometry(Part.LineSegment(App.Vector(-16, -3, 0), App.Vector(-16, -6, 0)), False)
sketch15.addGeometry(Part.LineSegment(App.Vector(-16, -6, 0), App.Vector(-9, -6, 0)), False)
sketch15.addGeometry(Part.LineSegment(App.Vector(-9, -6, 0), App.Vector(-9, -3, 0)), False)
sketch15.addGeometry(Part.LineSegment(App.Vector(-9, -3, 0), App.Vector(-16, -3, 0)), False)
sketch15.addConstraint(Sketcher.Constraint("Coincident", 0, 2, 1, 1))
sketch15.addConstraint(Sketcher.Constraint("Coincident", 1, 2, 2, 1))
sketch15.addConstraint(Sketcher.Constraint("Coincident", 2, 2, 3, 1))
sketch15.addConstraint(Sketcher.Constraint("Coincident", 3, 2, 0, 1))
sketch15.addConstraint(Sketcher.Constraint("Vertical", 0))
sketch15.addConstraint(Sketcher.Constraint("Horizontal", 1))
sketch15.addConstraint(Sketcher.Constraint("Vertical", 2))
sketch15.addConstraint(Sketcher.Constraint("Horizontal", 3))
sketch15.addConstraint(Sketcher.Constraint("DistanceX", 1, 1, 1, 2, 7.0))
sketch15.addConstraint(Sketcher.Constraint("DistanceY", 0, 2, 0, 1, 3.0))
sketch15.addConstraint(Sketcher.Constraint("DistanceX", 0, 2, -1, 1, 16.0))
sketch15.addConstraint(Sketcher.Constraint("DistanceY", 0, 2, -1, 1, 6.0))
sketch15.setExpression("Constraints[8]", "Params.sketch15_width")
sketch15.setExpression("Constraints[9]", "Params.sketch15_height")

sketch16 = body.newObject("Sketcher::SketchObject", "Sketch015")
sketch16.AttachmentSupport = (doc.getObject("XY_Plane"), [""])
sketch16.MapMode = "FlatFace"
sketch16.addGeometry(Part.LineSegment(App.Vector(0, 0, 0), App.Vector(0, 144, 0)), False)
sketch16.addConstraint(Sketcher.Constraint("Vertical", 0))
sketch16.addConstraint(Sketcher.Constraint("Coincident", 0, 1, -1, 1))
sketch16.addConstraint(Sketcher.Constraint("DistanceY", 0, 1, 0, 2, 144.0))
sketch16.setExpression("Constraints[2]", "Params.sketch16_height")
doc.recompute()

subtractivepipe6 = body.newObject("PartDesign::SubtractivePipe", "SubtractivePipe005")
subtractivepipe6.Profile = sketch15
subtractivepipe6.Spine = (sketch16, ["Edge1"])

sketch17 = body.newObject("Sketcher::SketchObject", "Sketch016")
sketch17.AttachmentSupport = (doc.getObject("XZ_Plane"), [""])
sketch17.MapMode = "FlatFace"
sketch17.addGeometry(Part.LineSegment(App.Vector(9, -3, 0), App.Vector(9, -6, 0)), False)
sketch17.addGeometry(Part.LineSegment(App.Vector(9, -6, 0), App.Vector(16, -6, 0)), False)
sketch17.addGeometry(Part.LineSegment(App.Vector(16, -6, 0), App.Vector(16, -3, 0)), False)
sketch17.addGeometry(Part.LineSegment(App.Vector(16, -3, 0), App.Vector(9, -3, 0)), False)
sketch17.addConstraint(Sketcher.Constraint("Coincident", 0, 2, 1, 1))
sketch17.addConstraint(Sketcher.Constraint("Coincident", 1, 2, 2, 1))
sketch17.addConstraint(Sketcher.Constraint("Coincident", 2, 2, 3, 1))
sketch17.addConstraint(Sketcher.Constraint("Coincident", 3, 2, 0, 1))
sketch17.addConstraint(Sketcher.Constraint("Vertical", 0))
sketch17.addConstraint(Sketcher.Constraint("Horizontal", 1))
sketch17.addConstraint(Sketcher.Constraint("Vertical", 2))
sketch17.addConstraint(Sketcher.Constraint("Horizontal", 3))
sketch17.addConstraint(Sketcher.Constraint("DistanceX", 1, 1, 1, 2, 7.0))
sketch17.addConstraint(Sketcher.Constraint("DistanceY", 0, 2, 0, 1, 3.0))
sketch17.addConstraint(Sketcher.Constraint("DistanceX", -1, 1, 0, 2, 9.0))
sketch17.addConstraint(Sketcher.Constraint("DistanceY", 0, 2, -1, 1, 6.0))
sketch17.setExpression("Constraints[8]", "Params.sketch17_width")
sketch17.setExpression("Constraints[9]", "Params.sketch17_height")

sketch18 = body.newObject("Sketcher::SketchObject", "Sketch017")
sketch18.AttachmentSupport = (doc.getObject("XY_Plane"), [""])
sketch18.MapMode = "FlatFace"
sketch18.addGeometry(Part.ArcOfCircle(Part.Circle(App.Vector(-222, 0, 0), App.Vector(0, 0, 1), 222), math.radians(0), math.radians(36)), False)
sketch18.addConstraint(Sketcher.Constraint("Coincident", 0, 1, -1, 1))
sketch18.addConstraint(Sketcher.Constraint("Radius", 0, 221.999993))
sketch18.addConstraint(Sketcher.Constraint("DistanceX", 0, 2, -1, 1, 42.398227))
sketch18.addConstraint(Sketcher.Constraint("DistanceY", -1, 1, 0, 2, 130.488326))
doc.recompute()

subtractivepipe7 = body.newObject("PartDesign::SubtractivePipe", "SubtractivePipe006")
subtractivepipe7.Profile = sketch17
subtractivepipe7.Spine = (sketch18, ["Edge1"])

sketch19 = body.newObject("Sketcher::SketchObject", "Sketch018")
sketch19.AttachmentSupport = (doc.getObject("XY_Plane"), [""])
sketch19.MapMode = "FlatFace"
sketch19.addGeometry(Part.LineSegment(App.Vector(-39, 133, 0), App.Vector(-46, 128, 0)), False)
sketch19.addGeometry(Part.LineSegment(App.Vector(-46, 128, 0), App.Vector(-42, 122, 0)), False)
sketch19.addGeometry(Part.ArcOfCircle(Part.Circle(App.Vector(-35, 120, 0), App.Vector(0, 0, 1), 7), math.radians(166), math.radians(446)), False)
sketch19.addGeometry(Part.LineSegment(App.Vector(-35, 127, 0), App.Vector(-39, 133, 0)), False)
sketch19.addConstraint(Sketcher.Constraint("Coincident", 0, 2, 1, 1))
sketch19.addConstraint(Sketcher.Constraint("Coincident", 1, 2, 2, 1))
sketch19.addConstraint(Sketcher.Constraint("Coincident", 2, 2, 3, 1))
sketch19.addConstraint(Sketcher.Constraint("Coincident", 3, 2, 0, 1))
sketch19.addConstraint(Sketcher.Constraint("Perpendicular", 0, 1))
sketch19.addConstraint(Sketcher.Constraint("Parallel", 1, 3))
sketch19.addConstraint(Sketcher.Constraint("Equal", 1, 3))
sketch19.addConstraint(Sketcher.Constraint("Radius", 2, 7.0))
sketch19.addConstraint(Sketcher.Constraint("Angle", 0, Q("-143.999996 deg")))
sketch19.addConstraint(Sketcher.Constraint("Distance", 0, 9.0))
sketch19.addConstraint(Sketcher.Constraint("Distance", 1, 7.0))
sketch19.addConstraint(Sketcher.Constraint("DistanceY", -1, 1, 2, 2, 127.470241))
sketch19.addConstraint(Sketcher.Constraint("DistanceX", 3, 2, -1, 1, 38.757651))
sketch19.setExpression("Constraints[7]", "Params.sketch19_radius")
sketch19.setExpression("Constraints[9]", "Params.sketch19_length")
sketch19.setExpression("Constraints[10]", "Params.sketch19_length2")
pocket1 = body.newObject("PartDesign::Pocket", "Pocket")
pocket1.Profile = sketch19
pocket1.Type = "ThroughAll"
pocket1.Midplane = True

sketch20 = body.newObject("Sketcher::SketchObject", "Sketch019")
sketch20.AttachmentSupport = (doc.getObject("XY_Plane"), [""])
sketch20.MapMode = "FlatFace"
sketch20.addGeometry(Part.LineSegment(App.Vector(-4, 0, 0), App.Vector(4, 0, 0)), False)
sketch20.addGeometry(Part.LineSegment(App.Vector(4, 0, 0), App.Vector(4, 7, 0)), False)
sketch20.addGeometry(Part.ArcOfCircle(Part.Circle(App.Vector(0, 12, 0), App.Vector(0, 0, 1), 7), math.radians(-50), math.radians(230)), False)
sketch20.addGeometry(Part.LineSegment(App.Vector(-4, 7, 0), App.Vector(-4, 0, 0)), False)
sketch20.addConstraint(Sketcher.Constraint("Coincident", 0, 2, 1, 1))
sketch20.addConstraint(Sketcher.Constraint("Coincident", 1, 2, 2, 1))
sketch20.addConstraint(Sketcher.Constraint("Coincident", 2, 2, 3, 1))
sketch20.addConstraint(Sketcher.Constraint("Coincident", 3, 2, 0, 1))
sketch20.addConstraint(Sketcher.Constraint("Horizontal", 0))
sketch20.addConstraint(Sketcher.Constraint("Vertical", 1))
sketch20.addConstraint(Sketcher.Constraint("Vertical", 3))
sketch20.addConstraint(Sketcher.Constraint("Symmetric", 0, 2, 3, 2, -1, 1))
sketch20.addConstraint(Sketcher.Constraint("PointOnObject", 2, 3, -2))
sketch20.addConstraint(Sketcher.Constraint("Radius", 2, 7.0))
sketch20.addConstraint(Sketcher.Constraint("DistanceX", 0, 1, 0, 2, 9.0))
sketch20.addConstraint(Sketcher.Constraint("DistanceY", 1, 1, 1, 2, 7.0))
sketch20.setExpression("Constraints[9]", "Params.sketch20_radius")
sketch20.setExpression("Constraints[10]", "Params.sketch20_width")
sketch20.setExpression("Constraints[11]", "Params.sketch20_height")
pocket2 = body.newObject("PartDesign::Pocket", "Pocket001")
pocket2.Profile = sketch20
pocket2.Type = "ThroughAll"
pocket2.Midplane = True
body2 = doc.addObject("PartDesign::Body", "Body001")

sketch21 = body2.newObject("Sketcher::SketchObject", "Sketch020")
sketch21.AttachmentSupport = (doc.getObject("XY_Plane001"), [""])
sketch21.MapMode = "FlatFace"
sketch21.addGeometry(Part.LineSegment(App.Vector(-3, 144, 0), App.Vector(3, 144, 0)), False)
sketch21.addGeometry(Part.LineSegment(App.Vector(3, 144, 0), App.Vector(3, 152, 0)), False)
sketch21.addGeometry(Part.ArcOfCircle(Part.Circle(App.Vector(0, 156, 0), App.Vector(0, 0, 1), 5), math.radians(-53), math.radians(233)), False)
sketch21.addGeometry(Part.LineSegment(App.Vector(-3, 152, 0), App.Vector(-3, 144, 0)), False)
sketch21.addConstraint(Sketcher.Constraint("Coincident", 0, 2, 1, 1))
sketch21.addConstraint(Sketcher.Constraint("Coincident", 1, 2, 2, 1))
sketch21.addConstraint(Sketcher.Constraint("Coincident", 2, 2, 3, 1))
sketch21.addConstraint(Sketcher.Constraint("Coincident", 3, 2, 0, 1))
sketch21.addConstraint(Sketcher.Constraint("Horizontal", 0))
sketch21.addConstraint(Sketcher.Constraint("Vertical", 1))
sketch21.addConstraint(Sketcher.Constraint("Vertical", 3))
sketch21.addConstraint(Sketcher.Constraint("Symmetric", 1, 2, 2, 2, -2))
sketch21.addConstraint(Sketcher.Constraint("Radius", 2, 5.0))
sketch21.addConstraint(Sketcher.Constraint("DistanceX", 0, 1, 0, 2, 6.0))
sketch21.addConstraint(Sketcher.Constraint("DistanceY", 1, 1, 1, 2, 8.0))
sketch21.addConstraint(Sketcher.Constraint("DistanceY", -1, 1, 2, 3, 156.0))
sketch21.setExpression("Constraints[8]", "Params.sketch21_radius")
sketch21.setExpression("Constraints[9]", "Params.sketch21_width")
sketch21.setExpression("Constraints[10]", "Params.sketch21_height")
pad1 = body2.newObject("PartDesign::Pad", "Pad")
pad1.Profile = sketch21
pad1.setExpression("Length", "Params.pad1_length")
pad1.Midplane = True

doc.recompute()
